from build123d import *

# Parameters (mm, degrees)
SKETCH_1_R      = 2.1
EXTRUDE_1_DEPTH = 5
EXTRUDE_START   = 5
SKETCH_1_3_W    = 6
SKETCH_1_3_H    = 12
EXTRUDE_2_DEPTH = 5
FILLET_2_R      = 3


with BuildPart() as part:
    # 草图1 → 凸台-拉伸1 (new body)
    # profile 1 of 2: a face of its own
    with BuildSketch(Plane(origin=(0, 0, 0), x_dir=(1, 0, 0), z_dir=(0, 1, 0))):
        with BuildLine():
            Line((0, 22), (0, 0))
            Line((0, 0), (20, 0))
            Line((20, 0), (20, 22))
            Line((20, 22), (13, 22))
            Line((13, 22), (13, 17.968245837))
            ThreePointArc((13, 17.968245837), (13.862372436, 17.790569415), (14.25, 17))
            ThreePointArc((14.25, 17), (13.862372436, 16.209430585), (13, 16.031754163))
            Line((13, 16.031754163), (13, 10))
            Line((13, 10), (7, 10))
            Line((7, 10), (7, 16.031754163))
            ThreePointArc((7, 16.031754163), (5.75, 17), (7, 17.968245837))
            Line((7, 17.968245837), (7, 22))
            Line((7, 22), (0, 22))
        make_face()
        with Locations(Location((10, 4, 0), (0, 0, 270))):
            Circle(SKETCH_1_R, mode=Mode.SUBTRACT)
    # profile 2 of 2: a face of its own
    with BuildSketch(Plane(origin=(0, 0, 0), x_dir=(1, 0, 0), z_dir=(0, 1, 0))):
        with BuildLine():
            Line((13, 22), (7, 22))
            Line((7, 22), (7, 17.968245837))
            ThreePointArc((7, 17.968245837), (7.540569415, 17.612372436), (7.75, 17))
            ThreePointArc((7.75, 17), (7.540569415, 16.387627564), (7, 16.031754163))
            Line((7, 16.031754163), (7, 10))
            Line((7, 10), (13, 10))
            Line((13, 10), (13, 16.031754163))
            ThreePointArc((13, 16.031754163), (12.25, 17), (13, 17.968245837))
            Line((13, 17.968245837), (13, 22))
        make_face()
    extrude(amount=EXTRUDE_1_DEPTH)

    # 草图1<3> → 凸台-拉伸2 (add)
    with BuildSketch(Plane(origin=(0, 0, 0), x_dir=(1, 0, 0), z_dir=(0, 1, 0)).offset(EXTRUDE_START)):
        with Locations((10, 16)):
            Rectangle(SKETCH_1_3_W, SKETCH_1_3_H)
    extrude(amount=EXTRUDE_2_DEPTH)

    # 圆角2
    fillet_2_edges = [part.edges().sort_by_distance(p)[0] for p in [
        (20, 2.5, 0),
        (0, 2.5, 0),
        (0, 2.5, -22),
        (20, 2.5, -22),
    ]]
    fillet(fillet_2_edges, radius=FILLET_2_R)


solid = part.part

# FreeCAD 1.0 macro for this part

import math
import FreeCAD as App
import Part
import Sketcher
from FreeCAD import Vector


def edges_at(feature, points):
    """Names of the edges that pass closest to the given points."""
    edges = feature.Shape.Edges
    near = lambda p: min(range(len(edges)), key=lambda i: edges[i].distToShape(Part.Vertex(*p))[0])
    return sorted({f"Edge{near(p) + 1}" for p in points})

doc = App.newDocument("Part")
body = doc.addObject("PartDesign::Body", "Body")

sketch1 = body.newObject("Sketcher::SketchObject", "Sketch")
sketch1.AttachmentSupport = (doc.getObject("XZ_Plane"), [""])
sketch1.MapMode = "FlatFace"
sketch1.addGeometry([
    Part.LineSegment(Vector(0, -22, 0), Vector(0, 0, 0)),
    Part.LineSegment(Vector(0, 0, 0), Vector(20, 0, 0)),
    Part.LineSegment(Vector(20, 0, 0), Vector(20, -22, 0)),
    Part.LineSegment(Vector(20, -22, 0), Vector(0, -22, 0)),
    Part.ArcOfCircle(Part.Circle(Vector(6.8, -17, 0), Vector(0, 0, 1), 1), math.radians(76), math.radians(284)),
    Part.ArcOfCircle(Part.Circle(Vector(6.8, -17, 0), Vector(0, 0, 1), 1), math.radians(-76), math.radians(0)),
    Part.ArcOfCircle(Part.Circle(Vector(6.8, -17, 0), Vector(0, 0, 1), 1), math.radians(0), math.radians(76)),
    Part.ArcOfCircle(Part.Circle(Vector(13.2, -17, 0), Vector(0, 0, 1), 1), math.radians(-104), math.radians(0)),
    Part.ArcOfCircle(Part.Circle(Vector(13.2, -17, 0), Vector(0, 0, 1), 1), math.radians(0), math.radians(104)),
    Part.ArcOfCircle(Part.Circle(Vector(13.3, -17, 0), Vector(0, 0, 1), 1), math.radians(104), math.radians(256)),
    Part.Circle(Vector(10, -4, 0), Vector(0, 0, 1), 2.1),
], False)
sketch1.addConstraint([
    Sketcher.Constraint("Coincident", 0, 2, 1, 1),
    Sketcher.Constraint("Coincident", 1, 2, 2, 1),
    Sketcher.Constraint("Coincident", 2, 2, 3, 1),
    Sketcher.Constraint("Coincident", 3, 2, 0, 1),
    Sketcher.Constraint("Tangent", 4, 2, 5, 1),
    Sketcher.Constraint("Tangent", 5, 2, 6, 1),
    Sketcher.Constraint("Tangent", 6, 2, 4, 1),
    Sketcher.Constraint("Tangent", 7, 2, 8, 1),
    Sketcher.Constraint("Tangent", 8, 2, 9, 1),
    Sketcher.Constraint("Tangent", 9, 2, 7, 1),
    Sketcher.Constraint("Vertical", 0),
    Sketcher.Constraint("Horizontal", 1),
    Sketcher.Constraint("Vertical", 2),
    Sketcher.Constraint("Horizontal", 3),
    Sketcher.Constraint("Coincident", 0, 2, -1, 1),
    Sketcher.Constraint("Equal", 6, 7),
    Sketcher.Constraint("Horizontal", 6, 3, 7, 3),
    Sketcher.Constraint("Horizontal", 9, 3, 5, 2),
    Sketcher.Constraint("Horizontal", 5, 2, 7, 2),
    Sketcher.Constraint("Horizontal", 6, 2, 8, 2),
    Sketcher.Constraint("Horizontal", 4, 2, 9, 2),
    Sketcher.Constraint("Vertical", 4, 2, 6, 2),
    Sketcher.Constraint("Radius", 4, 1.0),
    Sketcher.Constraint("Diameter", 10, 4.2),
    Sketcher.Constraint("DistanceX", 1, 1, 1, 2, 20.0),
    Sketcher.Constraint("DistanceY", 0, 1, 0, 2, 22.0),
    Sketcher.Constraint("DistanceY", 4, 3, -1, 1, 17.0),
    Sketcher.Constraint("DistanceX", -1, 1, 10, 3, 10.0),
    Sketcher.Constraint("DistanceY", 10, 3, -1, 1, 4.0),
    Sketcher.Constraint("DistanceX", -1, 1, 4, 2, 7.0),
    Sketcher.Constraint("DistanceX", -1, 1, 8, 2, 13.0),
    Sketcher.Constraint("DistanceX", 4, 3, 7, 3, 6.5),
])
pad1 = body.newObject("PartDesign::Pad", "Pad")
pad1.Profile = sketch1
pad1.Length = 5
pad1.Reversed = True

sketch2 = body.newObject("Sketcher::SketchObject", "Sketch001")
sketch2.AttachmentSupport = (doc.getObject("XZ_Plane"), [""])
sketch2.MapMode = "FlatFace"
sketch2.AttachmentOffset = App.Placement(Vector(0, 0, -5), App.Rotation())
sketch2.addGeometry([
    Part.LineSegment(Vector(7, -22, 0), Vector(7, -10, 0)),
    Part.LineSegment(Vector(7, -10, 0), Vector(13, -10, 0)),
    Part.LineSegment(Vector(13, -10, 0), Vector(13, -22, 0)),
    Part.LineSegment(Vector(13, -22, 0), Vector(7, -22, 0)),
], False)
sketch2.addConstraint([
    Sketcher.Constraint("Coincident", 0, 2, 1, 1),
    Sketcher.Constraint("Coincident", 1, 2, 2, 1),
    Sketcher.Constraint("Coincident", 2, 2, 3, 1),
    Sketcher.Constraint("Coincident", 3, 2, 0, 1),
    Sketcher.Constraint("Vertical", 0),
    Sketcher.Constraint("Horizontal", 1),
    Sketcher.Constraint("Vertical", 2),
    Sketcher.Constraint("Horizontal", 3),
    Sketcher.Constraint("DistanceX", 1, 1, 1, 2, 6.0),
    Sketcher.Constraint("DistanceY", 0, 1, 0, 2, 12.0),
    Sketcher.Constraint("DistanceX", -1, 1, 0, 2, 7.0),
    Sketcher.Constraint("DistanceY", 0, 2, -1, 1, 10.0),
])
pad2 = body.newObject("PartDesign::Pad", "Pad001")
pad2.Profile = sketch2
pad2.Length = 5
pad2.Reversed = True
doc.recompute()

fillet = body.newObject("PartDesign::Fillet", "Fillet")
fillet.Base = (pad2, edges_at(pad2, [
    (20, 2.5, 0),
    (0, 2.5, 0),
    (0, 2.5, -22),
    (20, 2.5, -22),
]))
fillet.Radius = 3

doc.recompute()
